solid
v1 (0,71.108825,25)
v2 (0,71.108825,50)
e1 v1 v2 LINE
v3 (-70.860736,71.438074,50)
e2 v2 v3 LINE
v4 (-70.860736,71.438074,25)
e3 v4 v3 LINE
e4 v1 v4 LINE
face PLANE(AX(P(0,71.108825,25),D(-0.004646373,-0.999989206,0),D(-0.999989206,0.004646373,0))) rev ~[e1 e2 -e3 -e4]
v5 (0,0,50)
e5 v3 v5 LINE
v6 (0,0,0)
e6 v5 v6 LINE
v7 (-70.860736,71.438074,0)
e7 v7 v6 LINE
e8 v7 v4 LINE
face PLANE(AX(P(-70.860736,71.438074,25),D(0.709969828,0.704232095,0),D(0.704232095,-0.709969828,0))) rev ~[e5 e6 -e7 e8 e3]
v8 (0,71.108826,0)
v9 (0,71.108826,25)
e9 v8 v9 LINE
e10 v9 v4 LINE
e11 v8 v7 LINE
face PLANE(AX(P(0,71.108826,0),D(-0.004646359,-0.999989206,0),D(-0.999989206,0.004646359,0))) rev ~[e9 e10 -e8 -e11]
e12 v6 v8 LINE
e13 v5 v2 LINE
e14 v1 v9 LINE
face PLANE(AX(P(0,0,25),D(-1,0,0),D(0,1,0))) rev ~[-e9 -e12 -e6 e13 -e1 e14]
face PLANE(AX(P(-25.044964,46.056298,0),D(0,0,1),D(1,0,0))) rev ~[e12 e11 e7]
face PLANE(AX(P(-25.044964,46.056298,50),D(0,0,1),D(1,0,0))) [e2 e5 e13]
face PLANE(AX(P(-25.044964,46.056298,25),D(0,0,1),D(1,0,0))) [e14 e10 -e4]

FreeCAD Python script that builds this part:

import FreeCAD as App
import Part
import Sketcher
from FreeCAD import Vector


def add_polygon(sketch, points):
    """Adds a closed chain of lines whose ends are joined by coincident constraints."""
    first, n = sketch.GeometryCount, len(points)
    for a, b in zip(points, points[1:] + points[:1]):
        sketch.addGeometry(Part.LineSegment(App.Vector(*a, 0), App.Vector(*b, 0)), False)
    for i in range(n):
        sketch.addConstraint(Sketcher.Constraint("Coincident", first + i, 2, first + (i + 1) % n, 1))

doc = App.newDocument("Part")
body = doc.addObject("PartDesign::Body", "Body")

sketch1 = body.newObject("Sketcher::SketchObject", "Sketch")
sketch1.AttachmentSupport = (doc.getObject("XY_Plane"), [""])
sketch1.MapMode = "FlatFace"
add_polygon(sketch1, [(-71, 71), (0, 0), (0, 71)])
sketch1.addConstraint(Sketcher.Constraint("Vertical", 1))
sketch1.addConstraint(Sketcher.Constraint("Coincident", 0, 2, -1, 1))
sketch1.addConstraint(Sketcher.Constraint("Distance", 2, 70.861501))
sketch1.addConstraint(Sketcher.Constraint("Distance", 0, 100.621282))
sketch1.addConstraint(Sketcher.Constraint("DistanceY", 1, 1, 1, 2, 71.108826))
pad1 = body.newObject("PartDesign::Pad", "Pad")
pad1.Profile = sketch1
pad1.Length = 25

sketch2 = body.newObject("Sketcher::SketchObject", "Sketch001")
sketch2.AttachmentSupport = (doc.getObject("XY_Plane"), [""])
sketch2.MapMode = "FlatFace"
sketch2.AttachmentOffset = App.Placement(Vector(0, 0, 25), App.Rotation())
add_polygon(sketch2, [(0, 71), (-71, 71), (0, 0)])
sketch2.addConstraint(Sketcher.Constraint("Vertical", 2))
sketch2.addConstraint(Sketcher.Constraint("Coincident", 1, 2, -1, 1))
sketch2.addConstraint(Sketcher.Constraint("Distance", 0, 70.861501))
sketch2.addConstraint(Sketcher.Constraint("Distance", 1, 100.621282))
sketch2.addConstraint(Sketcher.Constraint("DistanceY", 2, 1, 2, 2, 71.108825))
pad2 = body.newObject("PartDesign::Pad", "Pad001")
pad2.Profile = sketch2
pad2.Length = 25

doc.recompute()
